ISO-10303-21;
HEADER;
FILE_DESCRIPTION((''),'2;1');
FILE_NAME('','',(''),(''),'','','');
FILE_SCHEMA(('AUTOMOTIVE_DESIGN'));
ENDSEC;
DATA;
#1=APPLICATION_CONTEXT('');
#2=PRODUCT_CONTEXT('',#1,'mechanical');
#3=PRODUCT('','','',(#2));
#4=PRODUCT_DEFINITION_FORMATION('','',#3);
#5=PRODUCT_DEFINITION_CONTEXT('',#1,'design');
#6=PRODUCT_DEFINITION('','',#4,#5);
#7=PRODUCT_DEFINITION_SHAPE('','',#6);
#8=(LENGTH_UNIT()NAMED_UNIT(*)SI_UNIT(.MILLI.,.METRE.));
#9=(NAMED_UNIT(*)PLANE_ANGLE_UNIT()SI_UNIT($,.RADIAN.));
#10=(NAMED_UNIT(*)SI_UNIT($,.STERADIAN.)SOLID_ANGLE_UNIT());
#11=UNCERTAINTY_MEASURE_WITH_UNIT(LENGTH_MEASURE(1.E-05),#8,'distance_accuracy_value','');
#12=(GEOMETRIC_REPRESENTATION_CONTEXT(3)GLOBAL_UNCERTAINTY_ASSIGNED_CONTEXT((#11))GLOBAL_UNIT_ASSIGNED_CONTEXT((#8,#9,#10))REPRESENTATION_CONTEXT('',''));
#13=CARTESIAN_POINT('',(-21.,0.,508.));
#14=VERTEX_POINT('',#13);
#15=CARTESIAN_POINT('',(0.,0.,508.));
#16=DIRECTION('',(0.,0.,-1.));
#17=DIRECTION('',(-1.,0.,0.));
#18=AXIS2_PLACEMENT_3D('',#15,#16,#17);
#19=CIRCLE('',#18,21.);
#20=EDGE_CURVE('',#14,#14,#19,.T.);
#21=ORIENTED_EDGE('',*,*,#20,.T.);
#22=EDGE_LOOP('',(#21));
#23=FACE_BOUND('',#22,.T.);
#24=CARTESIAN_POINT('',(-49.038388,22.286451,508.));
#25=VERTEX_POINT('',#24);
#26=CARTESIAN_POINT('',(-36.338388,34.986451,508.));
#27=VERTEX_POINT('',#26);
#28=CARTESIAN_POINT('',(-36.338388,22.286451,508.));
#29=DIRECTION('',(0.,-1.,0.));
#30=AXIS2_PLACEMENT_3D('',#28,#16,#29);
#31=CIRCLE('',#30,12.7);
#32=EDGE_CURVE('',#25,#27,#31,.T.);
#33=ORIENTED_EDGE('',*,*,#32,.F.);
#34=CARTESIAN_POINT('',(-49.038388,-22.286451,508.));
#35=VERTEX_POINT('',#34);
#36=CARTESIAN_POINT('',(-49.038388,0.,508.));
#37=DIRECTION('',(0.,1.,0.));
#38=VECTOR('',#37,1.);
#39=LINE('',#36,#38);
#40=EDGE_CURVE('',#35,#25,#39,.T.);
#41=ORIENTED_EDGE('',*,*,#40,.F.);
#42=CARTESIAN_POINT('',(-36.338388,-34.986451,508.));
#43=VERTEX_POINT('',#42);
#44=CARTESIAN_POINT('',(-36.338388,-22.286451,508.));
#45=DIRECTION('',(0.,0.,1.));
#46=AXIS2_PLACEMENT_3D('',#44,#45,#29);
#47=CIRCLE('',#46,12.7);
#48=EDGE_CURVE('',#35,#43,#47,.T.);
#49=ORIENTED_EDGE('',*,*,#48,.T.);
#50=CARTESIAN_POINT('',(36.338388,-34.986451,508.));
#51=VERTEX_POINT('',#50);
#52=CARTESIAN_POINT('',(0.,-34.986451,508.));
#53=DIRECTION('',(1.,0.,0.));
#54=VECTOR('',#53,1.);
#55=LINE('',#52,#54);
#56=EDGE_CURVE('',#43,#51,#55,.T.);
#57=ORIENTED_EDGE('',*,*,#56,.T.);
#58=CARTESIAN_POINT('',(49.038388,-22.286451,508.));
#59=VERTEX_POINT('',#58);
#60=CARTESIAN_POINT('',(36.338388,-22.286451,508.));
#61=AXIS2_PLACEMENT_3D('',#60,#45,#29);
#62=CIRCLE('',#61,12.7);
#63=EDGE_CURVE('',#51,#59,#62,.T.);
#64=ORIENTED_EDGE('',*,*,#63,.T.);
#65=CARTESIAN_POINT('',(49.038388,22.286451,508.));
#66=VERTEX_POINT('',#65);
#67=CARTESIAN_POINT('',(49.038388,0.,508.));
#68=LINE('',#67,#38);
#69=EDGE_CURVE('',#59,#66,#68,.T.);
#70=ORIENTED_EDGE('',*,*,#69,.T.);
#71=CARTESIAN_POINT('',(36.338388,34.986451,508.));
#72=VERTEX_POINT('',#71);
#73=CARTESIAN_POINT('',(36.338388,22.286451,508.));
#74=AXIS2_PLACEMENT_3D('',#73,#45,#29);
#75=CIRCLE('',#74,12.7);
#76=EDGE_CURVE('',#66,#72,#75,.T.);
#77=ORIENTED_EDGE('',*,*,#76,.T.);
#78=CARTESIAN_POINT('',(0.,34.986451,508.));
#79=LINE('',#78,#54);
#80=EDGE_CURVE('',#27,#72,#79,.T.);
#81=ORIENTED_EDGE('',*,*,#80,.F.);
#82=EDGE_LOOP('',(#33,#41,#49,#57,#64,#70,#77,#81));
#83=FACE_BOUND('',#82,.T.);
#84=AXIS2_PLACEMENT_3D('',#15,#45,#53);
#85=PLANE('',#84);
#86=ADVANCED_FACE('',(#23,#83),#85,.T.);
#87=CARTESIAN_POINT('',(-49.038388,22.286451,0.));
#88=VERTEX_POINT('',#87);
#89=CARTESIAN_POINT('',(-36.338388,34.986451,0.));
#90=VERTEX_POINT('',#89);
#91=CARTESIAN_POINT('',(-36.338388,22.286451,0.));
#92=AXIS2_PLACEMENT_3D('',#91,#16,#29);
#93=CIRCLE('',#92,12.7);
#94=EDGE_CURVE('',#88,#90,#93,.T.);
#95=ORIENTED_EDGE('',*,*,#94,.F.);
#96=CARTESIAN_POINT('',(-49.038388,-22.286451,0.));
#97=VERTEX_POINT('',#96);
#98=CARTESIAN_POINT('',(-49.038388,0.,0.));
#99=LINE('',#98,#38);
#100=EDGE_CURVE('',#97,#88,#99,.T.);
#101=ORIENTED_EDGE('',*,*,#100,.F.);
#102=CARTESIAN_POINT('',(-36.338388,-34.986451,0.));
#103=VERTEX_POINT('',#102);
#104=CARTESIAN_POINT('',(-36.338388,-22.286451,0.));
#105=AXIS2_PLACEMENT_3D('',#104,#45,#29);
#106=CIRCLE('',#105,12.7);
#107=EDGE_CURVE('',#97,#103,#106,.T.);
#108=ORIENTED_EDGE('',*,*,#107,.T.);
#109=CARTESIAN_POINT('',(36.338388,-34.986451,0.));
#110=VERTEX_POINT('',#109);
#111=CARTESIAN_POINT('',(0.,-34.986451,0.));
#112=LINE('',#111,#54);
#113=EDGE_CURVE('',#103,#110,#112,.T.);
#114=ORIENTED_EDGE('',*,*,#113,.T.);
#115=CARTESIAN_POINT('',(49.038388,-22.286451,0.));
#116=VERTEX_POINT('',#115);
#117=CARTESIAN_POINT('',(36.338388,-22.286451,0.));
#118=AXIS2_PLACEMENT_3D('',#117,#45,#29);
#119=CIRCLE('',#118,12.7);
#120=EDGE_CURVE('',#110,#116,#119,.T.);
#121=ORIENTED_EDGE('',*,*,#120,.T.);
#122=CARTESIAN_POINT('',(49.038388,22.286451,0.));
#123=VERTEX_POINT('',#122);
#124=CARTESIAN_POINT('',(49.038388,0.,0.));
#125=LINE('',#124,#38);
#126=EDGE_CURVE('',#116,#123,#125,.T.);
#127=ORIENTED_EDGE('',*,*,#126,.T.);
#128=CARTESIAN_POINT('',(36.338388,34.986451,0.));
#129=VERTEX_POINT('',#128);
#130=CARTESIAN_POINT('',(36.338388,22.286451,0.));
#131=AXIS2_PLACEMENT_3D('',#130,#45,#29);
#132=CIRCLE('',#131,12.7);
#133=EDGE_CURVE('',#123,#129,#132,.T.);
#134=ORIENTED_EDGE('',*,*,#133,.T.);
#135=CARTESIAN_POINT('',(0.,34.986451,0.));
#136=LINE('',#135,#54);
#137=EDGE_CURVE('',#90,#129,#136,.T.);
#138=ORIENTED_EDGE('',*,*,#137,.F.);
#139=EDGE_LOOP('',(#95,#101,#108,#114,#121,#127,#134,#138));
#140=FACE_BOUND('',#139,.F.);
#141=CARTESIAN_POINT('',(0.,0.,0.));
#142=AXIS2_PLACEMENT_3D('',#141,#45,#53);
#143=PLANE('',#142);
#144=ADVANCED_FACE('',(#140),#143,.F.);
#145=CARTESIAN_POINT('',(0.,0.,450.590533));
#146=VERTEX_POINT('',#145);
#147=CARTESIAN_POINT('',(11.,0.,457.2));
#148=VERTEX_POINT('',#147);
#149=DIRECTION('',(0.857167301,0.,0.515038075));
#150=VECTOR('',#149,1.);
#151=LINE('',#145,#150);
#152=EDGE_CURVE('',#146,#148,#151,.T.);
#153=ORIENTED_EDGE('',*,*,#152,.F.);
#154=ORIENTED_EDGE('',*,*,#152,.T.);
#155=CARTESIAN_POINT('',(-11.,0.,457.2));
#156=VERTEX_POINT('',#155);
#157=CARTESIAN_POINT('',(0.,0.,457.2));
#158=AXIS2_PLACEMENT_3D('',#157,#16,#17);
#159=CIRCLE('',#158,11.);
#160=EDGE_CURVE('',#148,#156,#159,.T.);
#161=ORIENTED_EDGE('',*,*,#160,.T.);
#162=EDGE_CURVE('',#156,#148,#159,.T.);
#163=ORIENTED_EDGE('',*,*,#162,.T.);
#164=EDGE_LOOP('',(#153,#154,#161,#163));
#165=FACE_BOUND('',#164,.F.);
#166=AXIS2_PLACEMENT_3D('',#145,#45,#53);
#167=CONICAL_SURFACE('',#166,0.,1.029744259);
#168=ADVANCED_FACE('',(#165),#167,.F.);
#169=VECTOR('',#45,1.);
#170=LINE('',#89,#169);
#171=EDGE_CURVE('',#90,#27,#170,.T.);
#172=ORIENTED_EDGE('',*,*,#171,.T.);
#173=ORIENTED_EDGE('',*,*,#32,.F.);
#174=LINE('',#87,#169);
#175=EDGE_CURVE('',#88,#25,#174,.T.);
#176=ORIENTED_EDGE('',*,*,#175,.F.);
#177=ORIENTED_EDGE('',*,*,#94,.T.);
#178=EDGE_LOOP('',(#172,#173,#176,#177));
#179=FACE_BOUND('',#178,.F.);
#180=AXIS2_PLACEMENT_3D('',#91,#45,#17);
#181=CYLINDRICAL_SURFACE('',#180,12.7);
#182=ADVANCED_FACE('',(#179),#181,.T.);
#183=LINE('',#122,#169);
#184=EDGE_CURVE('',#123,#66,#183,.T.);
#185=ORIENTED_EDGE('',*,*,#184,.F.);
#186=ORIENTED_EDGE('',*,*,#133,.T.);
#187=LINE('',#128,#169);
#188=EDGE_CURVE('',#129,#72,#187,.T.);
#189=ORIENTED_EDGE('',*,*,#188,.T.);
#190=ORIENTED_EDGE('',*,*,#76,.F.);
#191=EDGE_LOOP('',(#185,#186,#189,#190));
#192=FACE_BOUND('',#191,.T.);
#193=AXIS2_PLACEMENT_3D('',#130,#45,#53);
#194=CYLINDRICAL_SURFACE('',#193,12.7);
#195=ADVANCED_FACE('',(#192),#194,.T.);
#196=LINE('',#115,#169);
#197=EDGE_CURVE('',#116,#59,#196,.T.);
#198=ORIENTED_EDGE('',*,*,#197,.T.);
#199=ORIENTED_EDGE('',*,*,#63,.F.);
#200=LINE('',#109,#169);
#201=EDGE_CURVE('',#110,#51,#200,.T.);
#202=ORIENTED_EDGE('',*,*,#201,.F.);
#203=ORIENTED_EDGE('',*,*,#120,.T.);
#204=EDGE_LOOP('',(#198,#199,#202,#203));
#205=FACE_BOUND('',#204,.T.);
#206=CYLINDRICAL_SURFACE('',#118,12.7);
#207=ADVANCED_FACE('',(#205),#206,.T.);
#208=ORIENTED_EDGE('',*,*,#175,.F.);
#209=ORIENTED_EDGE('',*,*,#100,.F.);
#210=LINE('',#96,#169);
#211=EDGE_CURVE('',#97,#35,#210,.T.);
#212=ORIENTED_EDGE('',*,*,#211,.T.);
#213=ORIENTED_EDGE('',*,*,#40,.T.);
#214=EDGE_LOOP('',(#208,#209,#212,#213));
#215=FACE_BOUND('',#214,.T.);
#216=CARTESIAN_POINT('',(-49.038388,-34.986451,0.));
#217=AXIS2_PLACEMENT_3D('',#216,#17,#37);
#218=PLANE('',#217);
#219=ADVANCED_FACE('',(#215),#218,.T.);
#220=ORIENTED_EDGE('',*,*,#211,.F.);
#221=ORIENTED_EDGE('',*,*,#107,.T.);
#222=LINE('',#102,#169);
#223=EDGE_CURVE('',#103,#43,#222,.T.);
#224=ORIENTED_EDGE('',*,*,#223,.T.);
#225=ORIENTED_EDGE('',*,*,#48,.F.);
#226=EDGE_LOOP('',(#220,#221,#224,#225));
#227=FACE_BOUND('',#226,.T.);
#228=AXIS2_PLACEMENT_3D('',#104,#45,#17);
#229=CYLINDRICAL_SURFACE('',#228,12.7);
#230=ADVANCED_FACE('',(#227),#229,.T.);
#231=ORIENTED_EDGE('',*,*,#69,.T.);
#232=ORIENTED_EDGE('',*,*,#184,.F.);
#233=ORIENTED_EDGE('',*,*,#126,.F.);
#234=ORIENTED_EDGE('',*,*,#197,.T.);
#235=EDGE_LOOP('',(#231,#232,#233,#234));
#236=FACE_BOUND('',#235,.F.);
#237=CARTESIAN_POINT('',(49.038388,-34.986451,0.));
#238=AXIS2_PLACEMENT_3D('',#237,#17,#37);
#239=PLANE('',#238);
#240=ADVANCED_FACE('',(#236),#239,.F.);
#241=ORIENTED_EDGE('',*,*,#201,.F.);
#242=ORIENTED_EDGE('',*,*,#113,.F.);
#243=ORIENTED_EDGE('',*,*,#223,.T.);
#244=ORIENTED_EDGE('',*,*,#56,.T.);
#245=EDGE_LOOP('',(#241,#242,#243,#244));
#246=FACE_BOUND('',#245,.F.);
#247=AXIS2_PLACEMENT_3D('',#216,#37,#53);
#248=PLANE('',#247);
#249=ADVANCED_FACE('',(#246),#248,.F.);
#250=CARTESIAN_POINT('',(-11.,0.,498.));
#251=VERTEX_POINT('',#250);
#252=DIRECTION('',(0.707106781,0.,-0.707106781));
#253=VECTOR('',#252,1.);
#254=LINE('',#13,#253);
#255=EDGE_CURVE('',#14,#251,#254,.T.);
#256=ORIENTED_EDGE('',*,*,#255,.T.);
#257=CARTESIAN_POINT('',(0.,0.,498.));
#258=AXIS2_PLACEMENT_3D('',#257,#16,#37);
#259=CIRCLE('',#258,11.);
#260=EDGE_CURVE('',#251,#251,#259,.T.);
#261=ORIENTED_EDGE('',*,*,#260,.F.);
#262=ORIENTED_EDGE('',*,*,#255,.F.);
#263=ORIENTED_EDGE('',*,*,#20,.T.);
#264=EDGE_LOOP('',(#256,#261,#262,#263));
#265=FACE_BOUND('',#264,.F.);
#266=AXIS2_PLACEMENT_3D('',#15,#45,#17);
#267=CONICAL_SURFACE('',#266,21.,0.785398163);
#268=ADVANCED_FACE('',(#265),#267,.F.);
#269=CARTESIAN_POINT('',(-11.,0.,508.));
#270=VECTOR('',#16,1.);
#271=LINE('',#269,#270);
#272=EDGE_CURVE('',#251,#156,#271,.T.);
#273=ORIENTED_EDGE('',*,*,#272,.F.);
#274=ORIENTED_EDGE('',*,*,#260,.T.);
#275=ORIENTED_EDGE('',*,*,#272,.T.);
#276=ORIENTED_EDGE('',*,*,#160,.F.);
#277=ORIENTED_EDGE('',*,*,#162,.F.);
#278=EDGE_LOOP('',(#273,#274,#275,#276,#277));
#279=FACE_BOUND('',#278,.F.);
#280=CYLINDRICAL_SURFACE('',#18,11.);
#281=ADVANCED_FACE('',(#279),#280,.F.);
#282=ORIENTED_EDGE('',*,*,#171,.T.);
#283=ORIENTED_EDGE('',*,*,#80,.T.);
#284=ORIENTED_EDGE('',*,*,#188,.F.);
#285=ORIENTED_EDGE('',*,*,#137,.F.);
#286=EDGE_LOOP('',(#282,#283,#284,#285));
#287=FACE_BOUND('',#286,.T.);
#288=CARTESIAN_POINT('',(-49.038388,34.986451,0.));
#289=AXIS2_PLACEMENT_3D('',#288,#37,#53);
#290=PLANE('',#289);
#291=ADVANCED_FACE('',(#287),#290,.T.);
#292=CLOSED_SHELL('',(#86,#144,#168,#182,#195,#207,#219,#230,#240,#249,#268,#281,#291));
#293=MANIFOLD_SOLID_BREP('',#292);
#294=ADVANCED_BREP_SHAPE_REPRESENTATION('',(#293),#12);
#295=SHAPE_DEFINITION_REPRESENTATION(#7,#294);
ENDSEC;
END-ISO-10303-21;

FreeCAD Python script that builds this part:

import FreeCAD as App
import Part
import Sketcher

V = App.Vector
Q = App.Units.Quantity


def edges_at(feature, points):
    """Names of the edges that pass closest to the given points."""
    edges = feature.Shape.Edges
    near = lambda p: min(range(len(edges)), key=lambda i: edges[i].distToShape(Part.Vertex(*p))[0])
    return sorted({f"Edge{near(p) + 1}" for p in points})

doc = App.newDocument("Part")
body = doc.addObject("PartDesign::Body", "Body")

# Sketch on XY plane
sketch1 = doc.addObject("Sketcher::SketchObject", "Sketch")
body.addObject(sketch1)
sketch1.AttachmentSupport = (doc.XY_Plane, [""])
sketch1.MapMode = "FlatFace"
sketch1.addGeometry([
    Part.LineSegment(V(-49, 35, 0), V(-49, -35, 0)),
    Part.LineSegment(V(-49, -35, 0), V(49, -35, 0)),
    Part.LineSegment(V(49, -35, 0), V(49, 35, 0)),
    Part.LineSegment(V(49, 35, 0), V(-49, 35, 0)),
], False)
sketch1.addConstraint([
    Sketcher.Constraint("Coincident", 0, 2, 1, 1),
    Sketcher.Constraint("Coincident", 1, 2, 2, 1),
    Sketcher.Constraint("Coincident", 2, 2, 3, 1),
    Sketcher.Constraint("Coincident", 3, 2, 0, 1),
    Sketcher.Constraint("Vertical", 0),
    Sketcher.Constraint("Horizontal", 1),
    Sketcher.Constraint("Vertical", 2),
    Sketcher.Constraint("Horizontal", 3),
    Sketcher.Constraint("Symmetric", 0, 2, 2, 2, -1, 1),
    Sketcher.Constraint("DistanceX", 1, 1, 1, 2, 98.076776),
    Sketcher.Constraint("DistanceY", 0, 2, 0, 1, 69.972903),
])
pad1 = doc.addObject("PartDesign::Pad", "Pad")
body.addObject(pad1)
pad1.Profile = sketch1
pad1.Length = Q("20 in")
doc.recompute()

fillet = doc.addObject("PartDesign::Fillet", "Fillet")
body.addObject(fillet)
fillet.Base = (pad1, edges_at(pad1, [
    (49.038, 34.986, 254),
    (-49.038, 34.986, 254),
    (-49.038, -34.986, 254),
    (49.038, -34.986, 254),
]))
fillet.Radius = Q("0.5 in")

# Sketch on XY plane
sketch2 = doc.addObject("Sketcher::SketchObject", "Sketch001")
body.addObject(sketch2)
sketch2.AttachmentSupport = (doc.XY_Plane, [""])
sketch2.MapMode = "FlatFace"
sketch2.AttachmentOffset = App.Placement(V(0, 0, 20 * 25.4), App.Rotation())
sketch2.addGeometry(Part.Circle(V(0, 0, 0), V(0, 0, 1), 11), False)
sketch2.addConstraint([
    Sketcher.Constraint("Coincident", 0, 3, -1, 1),
    Sketcher.Constraint("Diameter", 0, 22.0),
])
doc.recompute()
hole = doc.addObject("PartDesign::Hole", "Hole")
body.addObject(hole)
hole.Profile = sketch2
hole.ThreadType = "None"
hole.Diameter = 22
hole.DepthType = "Dimension"
hole.Depth = Q("2 in")
hole.DrillPoint = "Angled"
hole.DrillPointAngle = 118
hole.HoleCutType = "Countersink"
hole.HoleCutDiameter = 42
hole.HoleCutCountersinkAngle = 90

doc.recompute()
